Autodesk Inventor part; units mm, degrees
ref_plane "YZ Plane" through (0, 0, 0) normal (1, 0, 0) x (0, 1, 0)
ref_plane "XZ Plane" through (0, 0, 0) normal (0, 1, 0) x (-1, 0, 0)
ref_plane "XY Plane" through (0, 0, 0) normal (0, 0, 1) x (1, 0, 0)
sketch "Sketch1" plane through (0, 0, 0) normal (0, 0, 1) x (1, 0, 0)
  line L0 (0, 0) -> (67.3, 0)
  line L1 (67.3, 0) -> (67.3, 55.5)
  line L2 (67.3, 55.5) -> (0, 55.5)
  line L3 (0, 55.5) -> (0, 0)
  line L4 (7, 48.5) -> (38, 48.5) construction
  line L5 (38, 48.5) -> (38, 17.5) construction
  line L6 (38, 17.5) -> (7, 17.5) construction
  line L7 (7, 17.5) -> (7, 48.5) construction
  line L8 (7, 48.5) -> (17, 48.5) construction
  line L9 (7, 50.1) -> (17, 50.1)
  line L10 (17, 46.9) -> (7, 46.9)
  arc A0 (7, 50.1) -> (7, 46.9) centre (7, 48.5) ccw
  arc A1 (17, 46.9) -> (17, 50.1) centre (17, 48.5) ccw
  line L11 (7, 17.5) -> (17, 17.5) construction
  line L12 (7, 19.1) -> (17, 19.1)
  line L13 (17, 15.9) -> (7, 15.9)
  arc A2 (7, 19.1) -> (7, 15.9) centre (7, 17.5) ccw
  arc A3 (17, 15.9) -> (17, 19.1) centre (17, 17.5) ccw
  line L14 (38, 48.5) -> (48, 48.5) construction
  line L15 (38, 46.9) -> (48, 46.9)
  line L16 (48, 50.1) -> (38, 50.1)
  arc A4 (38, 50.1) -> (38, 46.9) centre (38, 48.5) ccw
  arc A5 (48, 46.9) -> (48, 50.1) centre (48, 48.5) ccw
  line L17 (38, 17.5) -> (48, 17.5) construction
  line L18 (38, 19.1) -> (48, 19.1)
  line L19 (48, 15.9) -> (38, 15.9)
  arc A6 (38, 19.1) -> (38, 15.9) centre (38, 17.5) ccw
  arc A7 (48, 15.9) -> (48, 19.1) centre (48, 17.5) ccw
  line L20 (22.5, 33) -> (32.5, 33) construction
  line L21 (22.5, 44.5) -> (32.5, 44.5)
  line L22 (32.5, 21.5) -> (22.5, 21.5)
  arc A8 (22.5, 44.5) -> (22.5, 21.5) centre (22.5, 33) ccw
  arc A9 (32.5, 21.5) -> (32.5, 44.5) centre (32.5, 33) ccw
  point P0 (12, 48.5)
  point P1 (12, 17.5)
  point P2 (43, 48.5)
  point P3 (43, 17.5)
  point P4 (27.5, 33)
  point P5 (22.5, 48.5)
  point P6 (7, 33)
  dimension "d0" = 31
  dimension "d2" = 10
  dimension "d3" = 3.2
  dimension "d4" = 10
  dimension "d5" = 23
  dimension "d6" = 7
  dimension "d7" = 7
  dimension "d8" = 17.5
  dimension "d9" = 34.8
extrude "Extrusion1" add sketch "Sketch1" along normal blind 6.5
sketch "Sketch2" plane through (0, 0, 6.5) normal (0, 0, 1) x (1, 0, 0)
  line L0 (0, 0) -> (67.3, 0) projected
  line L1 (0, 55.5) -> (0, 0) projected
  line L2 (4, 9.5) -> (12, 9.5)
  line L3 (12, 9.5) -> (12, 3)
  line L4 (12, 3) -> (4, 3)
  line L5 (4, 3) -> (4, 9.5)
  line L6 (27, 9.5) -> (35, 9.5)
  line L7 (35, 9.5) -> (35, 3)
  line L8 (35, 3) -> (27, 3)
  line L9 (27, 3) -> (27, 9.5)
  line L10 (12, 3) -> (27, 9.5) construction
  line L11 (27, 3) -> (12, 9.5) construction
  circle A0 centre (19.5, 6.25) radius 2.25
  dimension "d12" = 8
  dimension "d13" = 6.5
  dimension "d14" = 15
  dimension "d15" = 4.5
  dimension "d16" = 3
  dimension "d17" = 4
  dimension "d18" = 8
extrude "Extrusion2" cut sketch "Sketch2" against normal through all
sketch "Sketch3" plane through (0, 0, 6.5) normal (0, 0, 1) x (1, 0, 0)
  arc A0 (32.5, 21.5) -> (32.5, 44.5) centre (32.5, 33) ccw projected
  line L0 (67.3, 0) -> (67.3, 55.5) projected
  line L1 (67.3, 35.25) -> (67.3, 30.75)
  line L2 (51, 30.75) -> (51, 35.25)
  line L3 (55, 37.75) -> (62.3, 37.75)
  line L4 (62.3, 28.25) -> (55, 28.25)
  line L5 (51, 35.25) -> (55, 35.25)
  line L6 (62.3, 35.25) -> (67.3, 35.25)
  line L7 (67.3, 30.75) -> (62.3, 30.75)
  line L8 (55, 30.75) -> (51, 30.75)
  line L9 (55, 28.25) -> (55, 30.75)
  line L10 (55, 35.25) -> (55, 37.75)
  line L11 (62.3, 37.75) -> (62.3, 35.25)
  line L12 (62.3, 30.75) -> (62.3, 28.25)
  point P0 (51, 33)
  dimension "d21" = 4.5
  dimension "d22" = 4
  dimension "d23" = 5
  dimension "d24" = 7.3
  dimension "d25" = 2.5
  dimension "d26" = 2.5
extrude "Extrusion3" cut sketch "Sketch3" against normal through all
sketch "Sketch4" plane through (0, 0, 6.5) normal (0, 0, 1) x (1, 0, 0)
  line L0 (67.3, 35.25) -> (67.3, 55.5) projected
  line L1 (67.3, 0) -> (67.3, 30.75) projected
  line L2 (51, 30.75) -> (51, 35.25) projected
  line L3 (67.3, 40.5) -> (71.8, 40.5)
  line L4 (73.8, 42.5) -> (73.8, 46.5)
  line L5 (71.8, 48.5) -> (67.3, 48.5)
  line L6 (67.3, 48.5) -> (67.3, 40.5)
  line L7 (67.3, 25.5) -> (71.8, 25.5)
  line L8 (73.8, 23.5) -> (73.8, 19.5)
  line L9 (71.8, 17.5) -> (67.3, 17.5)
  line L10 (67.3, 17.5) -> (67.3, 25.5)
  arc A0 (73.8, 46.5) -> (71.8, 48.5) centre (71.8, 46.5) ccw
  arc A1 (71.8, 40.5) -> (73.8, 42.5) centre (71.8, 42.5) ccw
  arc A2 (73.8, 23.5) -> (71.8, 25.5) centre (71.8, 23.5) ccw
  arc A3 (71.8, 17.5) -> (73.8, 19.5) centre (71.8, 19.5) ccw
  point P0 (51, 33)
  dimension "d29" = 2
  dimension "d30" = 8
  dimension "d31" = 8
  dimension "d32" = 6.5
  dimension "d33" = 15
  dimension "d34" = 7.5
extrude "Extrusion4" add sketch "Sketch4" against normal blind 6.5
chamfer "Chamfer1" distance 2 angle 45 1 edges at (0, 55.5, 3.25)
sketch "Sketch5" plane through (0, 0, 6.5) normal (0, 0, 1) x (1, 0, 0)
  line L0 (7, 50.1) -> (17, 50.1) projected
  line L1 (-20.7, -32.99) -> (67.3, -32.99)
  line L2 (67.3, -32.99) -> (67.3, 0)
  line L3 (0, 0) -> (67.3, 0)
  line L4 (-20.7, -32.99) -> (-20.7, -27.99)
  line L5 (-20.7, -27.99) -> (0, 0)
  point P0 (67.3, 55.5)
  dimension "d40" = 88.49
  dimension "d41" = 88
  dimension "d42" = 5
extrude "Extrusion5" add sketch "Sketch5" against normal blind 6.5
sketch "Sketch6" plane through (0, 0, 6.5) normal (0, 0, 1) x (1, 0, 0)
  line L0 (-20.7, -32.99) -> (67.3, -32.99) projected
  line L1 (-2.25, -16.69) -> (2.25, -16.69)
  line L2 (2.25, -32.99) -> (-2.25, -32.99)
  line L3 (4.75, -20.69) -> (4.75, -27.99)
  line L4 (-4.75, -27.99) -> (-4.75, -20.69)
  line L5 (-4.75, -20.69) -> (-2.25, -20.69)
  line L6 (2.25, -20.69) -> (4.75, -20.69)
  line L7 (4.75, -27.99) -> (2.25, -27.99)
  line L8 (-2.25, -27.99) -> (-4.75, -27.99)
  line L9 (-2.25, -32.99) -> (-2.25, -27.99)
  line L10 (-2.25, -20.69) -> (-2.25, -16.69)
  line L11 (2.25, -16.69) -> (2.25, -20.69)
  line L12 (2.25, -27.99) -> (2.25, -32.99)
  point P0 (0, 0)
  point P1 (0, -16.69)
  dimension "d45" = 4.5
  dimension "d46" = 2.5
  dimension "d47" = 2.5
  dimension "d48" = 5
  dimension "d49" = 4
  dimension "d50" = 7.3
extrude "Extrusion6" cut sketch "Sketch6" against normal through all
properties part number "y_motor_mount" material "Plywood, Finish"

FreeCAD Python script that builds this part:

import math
import FreeCAD as App
import Part
import Sketcher
from FreeCAD import Vector


def edges_at(feature, points):
    """Names of the edges that pass closest to the given points."""
    edges = feature.Shape.Edges
    near = lambda p: min(range(len(edges)), key=lambda i: edges[i].distToShape(Part.Vertex(*p))[0])
    return sorted({f"Edge{near(p) + 1}" for p in points})


def add_polygon(sketch, points):
    """Adds a closed chain of lines whose ends are joined by coincident constraints."""
    first, n = sketch.GeometryCount, len(points)
    for a, b in zip(points, points[1:] + points[:1]):
        sketch.addGeometry(Part.LineSegment(App.Vector(*a, 0), App.Vector(*b, 0)), False)
    for i in range(n):
        sketch.addConstraint(Sketcher.Constraint("Coincident", first + i, 2, first + (i + 1) % n, 1))

doc = App.newDocument("Part")
params = doc.addObject("Spreadsheet::Sheet", "Params")
for row, (alias, value) in enumerate([
    ("sketch1_radius", "1.6 mm"),
    ("sketch1_radius2", "11.5 mm"),
    ("sketch1_width", "10 mm"),
    ("sketch1_width2", "67.3 mm"),
    ("pad1_length", "6.5 mm"),
    ("sketch2_diameter", "4.5 mm"),
    ("sketch2_width", "8 mm"),
    ("sketch2_height", "6.5 mm"),
    ("sketch3_width", "5 mm"),
    ("sketch3_width2", "4 mm"),
    ("sketch3_width3", "7.3 mm"),
    ("sketch3_height", "4.5 mm"),
    ("sketch3_height2", "2.5 mm"),
    ("sketch4_radius", "2 mm"),
    ("sketch4_height", "8 mm"),
    ("pad2_length", "6.5 mm"),
    ("chamfer_size", "2 mm"),
    ("sketch5_width", "88 mm"),
    ("sketch5_height", "5 mm"),
    ("sketch5_width2", "67.3 mm"),
    ("sketch5_height2", "32.99 mm"),
    ("pad3_length", "6.5 mm"),
    ("sketch6_height", "5 mm"),
    ("sketch6_height2", "4 mm"),
    ("sketch6_width", "4.5 mm"),
    ("sketch6_width2", "2.5 mm"),
    ("sketch6_height3", "7.3 mm"),
], start=1):
    params.set(f"A{row}", alias)
    params.set(f"B{row}", "=" + value)
    params.setAlias(f"B{row}", alias)

body = doc.addObject("PartDesign::Body", "Body")

sketch1 = doc.addObject("Sketcher::SketchObject", "Sketch")
body.addObject(sketch1)
sketch1.AttachmentSupport = (doc.XY_Plane, [""])
sketch1.MapMode = "FlatFace"
add_polygon(sketch1, [(0, 55.5), (0, 0), (67.3, 0), (67.3, 55.5)])
sketch1.addGeometry(Part.ArcOfCircle(Part.Circle(Vector(7, 17.5, 0), Vector(0, 0, 1), 1.6), math.radians(90), math.radians(270)), False)
sketch1.addGeometry(Part.LineSegment(Vector(7, 19.1, 0), Vector(17, 19.1, 0)), False)
sketch1.addGeometry(Part.ArcOfCircle(Part.Circle(Vector(17, 17.5, 0), Vector(0, 0, 1), 1.6), math.radians(-90), math.radians(90)), False)
sketch1.addGeometry(Part.LineSegment(Vector(17, 15.9, 0), Vector(7, 15.9, 0)), False)
sketch1.addGeometry(Part.ArcOfCircle(Part.Circle(Vector(38, 17.5, 0), Vector(0, 0, 1), 1.6), math.radians(90), math.radians(270)), False)
sketch1.addGeometry(Part.LineSegment(Vector(38, 19.1, 0), Vector(48, 19.1, 0)), False)
sketch1.addGeometry(Part.ArcOfCircle(Part.Circle(Vector(48, 17.5, 0), Vector(0, 0, 1), 1.6), math.radians(-90), math.radians(90)), False)
sketch1.addGeometry(Part.LineSegment(Vector(48, 15.9, 0), Vector(38, 15.9, 0)), False)
sketch1.addGeometry(Part.ArcOfCircle(Part.Circle(Vector(22.5, 33, 0), Vector(0, 0, 1), 11.5), math.radians(90), math.radians(270)), False)
sketch1.addGeometry(Part.LineSegment(Vector(22.5, 44.5, 0), Vector(32.5, 44.5, 0)), False)
sketch1.addGeometry(Part.ArcOfCircle(Part.Circle(Vector(32.5, 33, 0), Vector(0, 0, 1), 11.5), math.radians(-90), math.radians(90)), False)
sketch1.addGeometry(Part.LineSegment(Vector(32.5, 21.5, 0), Vector(22.5, 21.5, 0)), False)
sketch1.addGeometry(Part.ArcOfCircle(Part.Circle(Vector(7, 48.5, 0), Vector(0, 0, 1), 1.6), math.radians(90), math.radians(270)), False)
sketch1.addGeometry(Part.LineSegment(Vector(7, 50.1, 0), Vector(17, 50.1, 0)), False)
sketch1.addGeometry(Part.ArcOfCircle(Part.Circle(Vector(17, 48.5, 0), Vector(0, 0, 1), 1.6), math.radians(-90), math.radians(90)), False)
sketch1.addGeometry(Part.LineSegment(Vector(17, 46.9, 0), Vector(7, 46.9, 0)), False)
sketch1.addGeometry(Part.LineSegment(Vector(48, 46.9, 0), Vector(38, 46.9, 0)), False)
sketch1.addGeometry(Part.ArcOfCircle(Part.Circle(Vector(38, 48.5, 0), Vector(0, 0, 1), 1.6), math.radians(90), math.radians(270)), False)
sketch1.addGeometry(Part.LineSegment(Vector(38, 50.1, 0), Vector(48, 50.1, 0)), False)
sketch1.addGeometry(Part.ArcOfCircle(Part.Circle(Vector(48, 48.5, 0), Vector(0, 0, 1), 1.6), math.radians(-90), math.radians(90)), False)
sketch1.addConstraint([
    Sketcher.Constraint("Tangent", 4, 1, 5, 1),
    Sketcher.Constraint("Tangent", 5, 2, 6, 2),
    Sketcher.Constraint("Tangent", 6, 1, 7, 1),
    Sketcher.Constraint("Tangent", 7, 2, 4, 2),
    Sketcher.Constraint("Tangent", 8, 1, 9, 1),
    Sketcher.Constraint("Tangent", 9, 2, 10, 2),
    Sketcher.Constraint("Tangent", 10, 1, 11, 1),
    Sketcher.Constraint("Tangent", 11, 2, 8, 2),
    Sketcher.Constraint("Tangent", 12, 1, 13, 1),
    Sketcher.Constraint("Tangent", 13, 2, 14, 2),
    Sketcher.Constraint("Tangent", 14, 1, 15, 1),
    Sketcher.Constraint("Tangent", 15, 2, 12, 2),
    Sketcher.Constraint("Tangent", 16, 1, 17, 1),
    Sketcher.Constraint("Tangent", 17, 2, 18, 2),
    Sketcher.Constraint("Tangent", 18, 1, 19, 1),
    Sketcher.Constraint("Tangent", 19, 2, 16, 2),
    Sketcher.Constraint("Tangent", 20, 2, 21, 2),
    Sketcher.Constraint("Tangent", 21, 1, 22, 1),
    Sketcher.Constraint("Tangent", 22, 2, 23, 2),
    Sketcher.Constraint("Tangent", 23, 1, 20, 1),
    Sketcher.Constraint("Vertical", 0),
    Sketcher.Constraint("Horizontal", 1),
    Sketcher.Constraint("Vertical", 2),
    Sketcher.Constraint("Horizontal", 3),
    Sketcher.Constraint("Horizontal", 5),
    Sketcher.Constraint("Horizontal", 7),
    Sketcher.Constraint("Horizontal", 9),
    Sketcher.Constraint("Horizontal", 11),
    Sketcher.Constraint("Horizontal", 13),
    Sketcher.Constraint("Horizontal", 15),
    Sketcher.Constraint("Horizontal", 17),
    Sketcher.Constraint("Horizontal", 19),
    Sketcher.Constraint("Horizontal", 20),
    Sketcher.Constraint("Horizontal", 22),
    Sketcher.Constraint("Coincident", 0, 2, -1, 1),
    Sketcher.Constraint("Equal", 6, 8),
    Sketcher.Constraint("Equal", 10, 16),
    Sketcher.Constraint("Equal", 18, 21),
    Sketcher.Constraint("Horizontal", 6, 3, 8, 3),
    Sketcher.Constraint("Horizontal", 18, 3, 21, 3),
    Sketcher.Constraint("Vertical", 4, 3, 16, 3),
    Sketcher.Constraint("Vertical", 6, 3, 18, 3),
    Sketcher.Constraint("Vertical", 8, 3, 21, 3),
    Sketcher.Constraint("Vertical", 10, 3, 23, 3),
    Sketcher.Constraint("Equal", 7, 9),
    Sketcher.Constraint("Equal", 11, 13),
    Sketcher.Constraint("Radius", 4, 1.6),
    Sketcher.Constraint("Radius", 12, 11.5),
    Sketcher.Constraint("DistanceX", 5, 1, 5, 2, 10.0),
    Sketcher.Constraint("DistanceX", -1, 1, 4, 3, 7.0),
    Sketcher.Constraint("DistanceX", 4, 3, 8, 3, 31.0),
    Sketcher.Constraint("DistanceY", 4, 3, 16, 3, 31.0),
    Sketcher.Constraint("DistanceY", 23, 3, 2, 2, 7.0),
    Sketcher.Constraint("DistanceY", -1, 1, 4, 3, 17.5),
    Sketcher.Constraint("DistanceX", 14, 3, 1, 2, 34.8),
    Sketcher.Constraint("DistanceX", 1, 1, 1, 2, 67.3),
    Sketcher.Constraint("DistanceY", -1, 1, 12, 3, 33.0),
])
sketch1.setExpression("Constraints[50]", "Params.sketch1_radius")
sketch1.setExpression("Constraints[51]", "Params.sketch1_radius2")
sketch1.setExpression("Constraints[52]", "Params.sketch1_width")
sketch1.setExpression("Constraints[59]", "Params.sketch1_width2")
pad1 = doc.addObject("PartDesign::Pad", "Pad")
body.addObject(pad1)
pad1.Profile = sketch1
pad1.setExpression("Length", "Params.pad1_length")

sketch2 = doc.addObject("Sketcher::SketchObject", "Sketch001")
body.addObject(sketch2)
sketch2.AttachmentSupport = (doc.XY_Plane, [""])
sketch2.MapMode = "FlatFace"
sketch2.AttachmentOffset = App.Placement(Vector(0, 0, 6.5), App.Rotation())
add_polygon(sketch2, [(12, 9.5), (4, 9.5), (4, 3), (12, 3)])
add_polygon(sketch2, [(35, 9.5), (27, 9.5), (27, 3), (35, 3)])
sketch2.addGeometry(Part.Circle(Vector(19.5, 6.25, 0), Vector(0, 0, 1), 2.25), False)
sketch2.addConstraint([
    Sketcher.Constraint("Horizontal", 0),
    Sketcher.Constraint("Vertical", 1),
    Sketcher.Constraint("Horizontal", 2),
    Sketcher.Constraint("Vertical", 3),
    Sketcher.Constraint("Horizontal", 4),
    Sketcher.Constraint("Vertical", 5),
    Sketcher.Constraint("Horizontal", 6),
    Sketcher.Constraint("Vertical", 7),
    Sketcher.Constraint("Horizontal", 3, 2, 4, 2),
    Sketcher.Constraint("Horizontal", 2, 2, 5, 2),
    Sketcher.Constraint("Equal", 2, 4),
    Sketcher.Constraint("Diameter", 8, 4.5),
    Sketcher.Constraint("DistanceX", 0, 2, 0, 1, 8.0),
    Sketcher.Constraint("DistanceY", 1, 2, 1, 1, 6.5),
    Sketcher.Constraint("DistanceX", -1, 1, 0, 2, 4.0),
    Sketcher.Constraint("DistanceY", -1, 1, 1, 2, 3.0),
    Sketcher.Constraint("DistanceX", 3, 2, 4, 2, 15.0),
    Sketcher.Constraint("DistanceX", -1, 1, 8, 3, 19.5),
    Sketcher.Constraint("DistanceY", -1, 1, 8, 3, 6.25),
])
sketch2.setExpression("Constraints[19]", "Params.sketch2_diameter")
sketch2.setExpression("Constraints[20]", "Params.sketch2_width")
sketch2.setExpression("Constraints[21]", "Params.sketch2_height")
pocket1 = doc.addObject("PartDesign::Pocket", "Pocket")
body.addObject(pocket1)
pocket1.Profile = sketch2
pocket1.Type = "ThroughAll"

sketch3 = doc.addObject("Sketcher::SketchObject", "Sketch002")
body.addObject(sketch3)
sketch3.AttachmentSupport = (doc.XY_Plane, [""])
sketch3.MapMode = "FlatFace"
sketch3.AttachmentOffset = App.Placement(Vector(0, 0, 6.5), App.Rotation())
add_polygon(sketch3, [(62.3, 30.75), (67.3, 30.75), (67.3, 35.25), (62.3, 35.25), (62.3, 37.75), (55, 37.75), (55, 35.25), (51, 35.25), (51, 30.75), (55, 30.75), (55, 28.25), (62.3, 28.25)])
sketch3.addConstraint([
    Sketcher.Constraint("Horizontal", 0),
    Sketcher.Constraint("Vertical", 1),
    Sketcher.Constraint("Horizontal", 2),
    Sketcher.Constraint("Vertical", 3),
    Sketcher.Constraint("Horizontal", 4),
    Sketcher.Constraint("Vertical", 5),
    Sketcher.Constraint("Horizontal", 6),
    Sketcher.Constraint("Vertical", 7),
    Sketcher.Constraint("Horizontal", 8),
    Sketcher.Constraint("Vertical", 9),
    Sketcher.Constraint("Horizontal", 10),
    Sketcher.Constraint("Vertical", 11),
    Sketcher.Constraint("Horizontal", 2, 2, 5, 2),
    Sketcher.Constraint("Horizontal", 0, 2, 7, 2),
    Sketcher.Constraint("Vertical", 5, 2, 8, 2),
    Sketcher.Constraint("Vertical", 3, 2, 10, 2),
    Sketcher.Constraint("Equal", 5, 9),
    Sketcher.Constraint("DistanceX", 0, 1, 0, 2, 5.0),
    Sketcher.Constraint("DistanceX", 6, 2, 6, 1, 4.0),
    Sketcher.Constraint("DistanceX", 4, 2, 4, 1, 7.3),
    Sketcher.Constraint("DistanceY", 1, 1, 1, 2, 4.5),
    Sketcher.Constraint("DistanceY", 3, 1, 3, 2, 2.5),
    Sketcher.Constraint("DistanceX", -1, 1, 4, 2, 55.0),
    Sketcher.Constraint("DistanceY", -1, 1, 0, 2, 30.75),
])
sketch3.setExpression("Constraints[29]", "Params.sketch3_width")
sketch3.setExpression("Constraints[30]", "Params.sketch3_width2")
sketch3.setExpression("Constraints[31]", "Params.sketch3_width3")
sketch3.setExpression("Constraints[32]", "Params.sketch3_height")
sketch3.setExpression("Constraints[33]", "Params.sketch3_height2")
pocket2 = doc.addObject("PartDesign::Pocket", "Pocket001")
body.addObject(pocket2)
pocket2.Profile = sketch3
pocket2.Type = "ThroughAll"

sketch4 = doc.addObject("Sketcher::SketchObject", "Sketch003")
body.addObject(sketch4)
sketch4.AttachmentSupport = (doc.XY_Plane, [""])
sketch4.MapMode = "FlatFace"
sketch4.AttachmentOffset = App.Placement(Vector(0, 0, 6.5), App.Rotation())
sketch4.addGeometry([
    Part.LineSegment(Vector(67.3, 48.5, 0), Vector(67.3, 40.5, 0)),
    Part.LineSegment(Vector(67.3, 40.5, 0), Vector(71.8, 40.5, 0)),
    Part.ArcOfCircle(Part.Circle(Vector(71.8, 42.5, 0), Vector(0, 0, 1), 2), math.radians(-90), math.radians(0)),
    Part.LineSegment(Vector(73.8, 42.5, 0), Vector(73.8, 46.5, 0)),
    Part.ArcOfCircle(Part.Circle(Vector(71.8, 46.5, 0), Vector(0, 0, 1), 2), math.radians(0), math.radians(90)),
    Part.LineSegment(Vector(71.8, 48.5, 0), Vector(67.3, 48.5, 0)),
    Part.LineSegment(Vector(67.3, 25.5, 0), Vector(67.3, 17.5, 0)),
    Part.LineSegment(Vector(67.3, 17.5, 0), Vector(71.8, 17.5, 0)),
    Part.ArcOfCircle(Part.Circle(Vector(71.8, 19.5, 0), Vector(0, 0, 1), 2), math.radians(-90), math.radians(0)),
    Part.LineSegment(Vector(73.8, 19.5, 0), Vector(73.8, 23.5, 0)),
    Part.ArcOfCircle(Part.Circle(Vector(71.8, 23.5, 0), Vector(0, 0, 1), 2), math.radians(0), math.radians(90)),
    Part.LineSegment(Vector(71.8, 25.5, 0), Vector(67.3, 25.5, 0)),
], False)
sketch4.addConstraint([
    Sketcher.Constraint("Coincident", 0, 2, 1, 1),
    Sketcher.Constraint("Tangent", 1, 2, 2, 1),
    Sketcher.Constraint("Tangent", 2, 2, 3, 1),
    Sketcher.Constraint("Tangent", 3, 2, 4, 1),
    Sketcher.Constraint("Tangent", 4, 2, 5, 1),
    Sketcher.Constraint("Coincident", 5, 2, 0, 1),
    Sketcher.Constraint("Coincident", 6, 2, 7, 1),
    Sketcher.Constraint("Tangent", 7, 2, 8, 1),
    Sketcher.Constraint("Tangent", 8, 2, 9, 1),
    Sketcher.Constraint("Tangent", 9, 2, 10, 1),
    Sketcher.Constraint("Tangent", 10, 2, 11, 1),
    Sketcher.Constraint("Coincident", 11, 2, 6, 1),
    Sketcher.Constraint("Vertical", 0),
    Sketcher.Constraint("Horizontal", 1),
    Sketcher.Constraint("Vertical", 3),
    Sketcher.Constraint("Horizontal", 5),
    Sketcher.Constraint("Vertical", 6),
    Sketcher.Constraint("Horizontal", 7),
    Sketcher.Constraint("Vertical", 9),
    Sketcher.Constraint("Horizontal", 11),
    Sketcher.Constraint("Equal", 2, 4),
    Sketcher.Constraint("Equal", 4, 8),
    Sketcher.Constraint("Equal", 8, 10),
    Sketcher.Constraint("Vertical", 4, 3, 8, 3),
    Sketcher.Constraint("Vertical", 5, 2, 6, 2),
    Sketcher.Constraint("Equal", 0, 6),
    Sketcher.Constraint("Radius", 2, 2.0),
    Sketcher.Constraint("DistanceY", 0, 2, 0, 1, 8.0),
    Sketcher.Constraint("DistanceX", 0, 2, 2, 2, 6.5),
    Sketcher.Constraint("DistanceY", 8, 3, 2, 3, 23.0),
    Sketcher.Constraint("DistanceX", -1, 1, 2, 3, 71.8),
    Sketcher.Constraint("DistanceY", -1, 1, 2, 3, 42.5),
])
sketch4.setExpression("Constraints[26]", "Params.sketch4_radius")
sketch4.setExpression("Constraints[27]", "Params.sketch4_height")
pad2 = doc.addObject("PartDesign::Pad", "Pad001")
body.addObject(pad2)
pad2.Profile = sketch4
pad2.setExpression("Length", "Params.pad2_length")
pad2.Reversed = True
doc.recompute()

chamfer = doc.addObject("PartDesign::Chamfer", "Chamfer")
body.addObject(chamfer)
chamfer.Base = (pad2, edges_at(pad2, [(0, 55.5, 3.25)]))
chamfer.setExpression("Size", "Params.chamfer_size")

sketch5 = doc.addObject("Sketcher::SketchObject", "Sketch004")
body.addObject(sketch5)
sketch5.AttachmentSupport = (doc.XY_Plane, [""])
sketch5.MapMode = "FlatFace"
sketch5.AttachmentOffset = App.Placement(Vector(0, 0, 6.5), App.Rotation())
add_polygon(sketch5, [(-20.7, -27.99), (-20.7, -32.99), (67.3, -32.99), (67.3, 0), (0, 0)])
sketch5.addConstraint([
    Sketcher.Constraint("Vertical", 0),
    Sketcher.Constraint("Horizontal", 1),
    Sketcher.Constraint("Vertical", 2),
    Sketcher.Constraint("Horizontal", 3),
    Sketcher.Constraint("Coincident", 3, 2, -1, 1),
    Sketcher.Constraint("DistanceX", 1, 1, 1, 2, 88.0),
    Sketcher.Constraint("DistanceY", 0, 2, 0, 1, 5.0),
    Sketcher.Constraint("DistanceX", 3, 2, 3, 1, 67.3),
    Sketcher.Constraint("DistanceY", 2, 1, 2, 2, 32.99),
])
sketch5.setExpression("Constraints[10]", "Params.sketch5_width")
sketch5.setExpression("Constraints[11]", "Params.sketch5_height")
sketch5.setExpression("Constraints[12]", "Params.sketch5_width2")
sketch5.setExpression("Constraints[13]", "Params.sketch5_height2")
pad3 = doc.addObject("PartDesign::Pad", "Pad002")
body.addObject(pad3)
pad3.Profile = sketch5
pad3.setExpression("Length", "Params.pad3_length")
pad3.Reversed = True

sketch6 = doc.addObject("Sketcher::SketchObject", "Sketch005")
body.addObject(sketch6)
sketch6.AttachmentSupport = (doc.XY_Plane, [""])
sketch6.MapMode = "FlatFace"
sketch6.AttachmentOffset = App.Placement(Vector(0, 0, 6.5), App.Rotation())
add_polygon(sketch6, [(-2.25, -27.99), (-2.25, -32.99), (2.25, -32.99), (2.25, -27.99), (4.75, -27.99), (4.75, -20.69), (2.25, -20.69), (2.25, -16.69), (-2.25, -16.69), (-2.25, -20.69), (-4.75, -20.69), (-4.75, -27.99)])
sketch6.addConstraint([
    Sketcher.Constraint("Vertical", 0),
    Sketcher.Constraint("Horizontal", 1),
    Sketcher.Constraint("Vertical", 2),
    Sketcher.Constraint("Horizontal", 3),
    Sketcher.Constraint("Vertical", 4),
    Sketcher.Constraint("Horizontal", 5),
    Sketcher.Constraint("Vertical", 6),
    Sketcher.Constraint("Horizontal", 7),
    Sketcher.Constraint("Vertical", 8),
    Sketcher.Constraint("Horizontal", 9),
    Sketcher.Constraint("Vertical", 10),
    Sketcher.Constraint("Horizontal", 11),
    Sketcher.Constraint("Symmetric", 5, 2, 8, 2, -2),
    Sketcher.Constraint("Symmetric", 3, 2, 10, 2, -2),
    Sketcher.Constraint("Vertical", 2, 2, 5, 2),
    Sketcher.Constraint("Vertical", 0, 2, 7, 2),
    Sketcher.Constraint("DistanceY", 0, 2, 0, 1, 5.0),
    Sketcher.Constraint("DistanceY", 6, 1, 6, 2, 4.0),
    Sketcher.Constraint("DistanceX", 1, 1, 1, 2, 4.5),
    Sketcher.Constraint("DistanceX", 3, 1, 3, 2, 2.5),
    Sketcher.Constraint("DistanceY", 4, 1, 4, 2, 7.3),
    Sketcher.Constraint("DistanceY", 0, 2, -1, 1, 32.99),
])
sketch6.setExpression("Constraints[28]", "Params.sketch6_height")
sketch6.setExpression("Constraints[29]", "Params.sketch6_height2")
sketch6.setExpression("Constraints[30]", "Params.sketch6_width")
sketch6.setExpression("Constraints[31]", "Params.sketch6_width2")
sketch6.setExpression("Constraints[32]", "Params.sketch6_height3")
pocket3 = doc.addObject("PartDesign::Pocket", "Pocket002")
body.addObject(pocket3)
pocket3.Profile = sketch6
pocket3.Type = "ThroughAll"

doc.recompute()
